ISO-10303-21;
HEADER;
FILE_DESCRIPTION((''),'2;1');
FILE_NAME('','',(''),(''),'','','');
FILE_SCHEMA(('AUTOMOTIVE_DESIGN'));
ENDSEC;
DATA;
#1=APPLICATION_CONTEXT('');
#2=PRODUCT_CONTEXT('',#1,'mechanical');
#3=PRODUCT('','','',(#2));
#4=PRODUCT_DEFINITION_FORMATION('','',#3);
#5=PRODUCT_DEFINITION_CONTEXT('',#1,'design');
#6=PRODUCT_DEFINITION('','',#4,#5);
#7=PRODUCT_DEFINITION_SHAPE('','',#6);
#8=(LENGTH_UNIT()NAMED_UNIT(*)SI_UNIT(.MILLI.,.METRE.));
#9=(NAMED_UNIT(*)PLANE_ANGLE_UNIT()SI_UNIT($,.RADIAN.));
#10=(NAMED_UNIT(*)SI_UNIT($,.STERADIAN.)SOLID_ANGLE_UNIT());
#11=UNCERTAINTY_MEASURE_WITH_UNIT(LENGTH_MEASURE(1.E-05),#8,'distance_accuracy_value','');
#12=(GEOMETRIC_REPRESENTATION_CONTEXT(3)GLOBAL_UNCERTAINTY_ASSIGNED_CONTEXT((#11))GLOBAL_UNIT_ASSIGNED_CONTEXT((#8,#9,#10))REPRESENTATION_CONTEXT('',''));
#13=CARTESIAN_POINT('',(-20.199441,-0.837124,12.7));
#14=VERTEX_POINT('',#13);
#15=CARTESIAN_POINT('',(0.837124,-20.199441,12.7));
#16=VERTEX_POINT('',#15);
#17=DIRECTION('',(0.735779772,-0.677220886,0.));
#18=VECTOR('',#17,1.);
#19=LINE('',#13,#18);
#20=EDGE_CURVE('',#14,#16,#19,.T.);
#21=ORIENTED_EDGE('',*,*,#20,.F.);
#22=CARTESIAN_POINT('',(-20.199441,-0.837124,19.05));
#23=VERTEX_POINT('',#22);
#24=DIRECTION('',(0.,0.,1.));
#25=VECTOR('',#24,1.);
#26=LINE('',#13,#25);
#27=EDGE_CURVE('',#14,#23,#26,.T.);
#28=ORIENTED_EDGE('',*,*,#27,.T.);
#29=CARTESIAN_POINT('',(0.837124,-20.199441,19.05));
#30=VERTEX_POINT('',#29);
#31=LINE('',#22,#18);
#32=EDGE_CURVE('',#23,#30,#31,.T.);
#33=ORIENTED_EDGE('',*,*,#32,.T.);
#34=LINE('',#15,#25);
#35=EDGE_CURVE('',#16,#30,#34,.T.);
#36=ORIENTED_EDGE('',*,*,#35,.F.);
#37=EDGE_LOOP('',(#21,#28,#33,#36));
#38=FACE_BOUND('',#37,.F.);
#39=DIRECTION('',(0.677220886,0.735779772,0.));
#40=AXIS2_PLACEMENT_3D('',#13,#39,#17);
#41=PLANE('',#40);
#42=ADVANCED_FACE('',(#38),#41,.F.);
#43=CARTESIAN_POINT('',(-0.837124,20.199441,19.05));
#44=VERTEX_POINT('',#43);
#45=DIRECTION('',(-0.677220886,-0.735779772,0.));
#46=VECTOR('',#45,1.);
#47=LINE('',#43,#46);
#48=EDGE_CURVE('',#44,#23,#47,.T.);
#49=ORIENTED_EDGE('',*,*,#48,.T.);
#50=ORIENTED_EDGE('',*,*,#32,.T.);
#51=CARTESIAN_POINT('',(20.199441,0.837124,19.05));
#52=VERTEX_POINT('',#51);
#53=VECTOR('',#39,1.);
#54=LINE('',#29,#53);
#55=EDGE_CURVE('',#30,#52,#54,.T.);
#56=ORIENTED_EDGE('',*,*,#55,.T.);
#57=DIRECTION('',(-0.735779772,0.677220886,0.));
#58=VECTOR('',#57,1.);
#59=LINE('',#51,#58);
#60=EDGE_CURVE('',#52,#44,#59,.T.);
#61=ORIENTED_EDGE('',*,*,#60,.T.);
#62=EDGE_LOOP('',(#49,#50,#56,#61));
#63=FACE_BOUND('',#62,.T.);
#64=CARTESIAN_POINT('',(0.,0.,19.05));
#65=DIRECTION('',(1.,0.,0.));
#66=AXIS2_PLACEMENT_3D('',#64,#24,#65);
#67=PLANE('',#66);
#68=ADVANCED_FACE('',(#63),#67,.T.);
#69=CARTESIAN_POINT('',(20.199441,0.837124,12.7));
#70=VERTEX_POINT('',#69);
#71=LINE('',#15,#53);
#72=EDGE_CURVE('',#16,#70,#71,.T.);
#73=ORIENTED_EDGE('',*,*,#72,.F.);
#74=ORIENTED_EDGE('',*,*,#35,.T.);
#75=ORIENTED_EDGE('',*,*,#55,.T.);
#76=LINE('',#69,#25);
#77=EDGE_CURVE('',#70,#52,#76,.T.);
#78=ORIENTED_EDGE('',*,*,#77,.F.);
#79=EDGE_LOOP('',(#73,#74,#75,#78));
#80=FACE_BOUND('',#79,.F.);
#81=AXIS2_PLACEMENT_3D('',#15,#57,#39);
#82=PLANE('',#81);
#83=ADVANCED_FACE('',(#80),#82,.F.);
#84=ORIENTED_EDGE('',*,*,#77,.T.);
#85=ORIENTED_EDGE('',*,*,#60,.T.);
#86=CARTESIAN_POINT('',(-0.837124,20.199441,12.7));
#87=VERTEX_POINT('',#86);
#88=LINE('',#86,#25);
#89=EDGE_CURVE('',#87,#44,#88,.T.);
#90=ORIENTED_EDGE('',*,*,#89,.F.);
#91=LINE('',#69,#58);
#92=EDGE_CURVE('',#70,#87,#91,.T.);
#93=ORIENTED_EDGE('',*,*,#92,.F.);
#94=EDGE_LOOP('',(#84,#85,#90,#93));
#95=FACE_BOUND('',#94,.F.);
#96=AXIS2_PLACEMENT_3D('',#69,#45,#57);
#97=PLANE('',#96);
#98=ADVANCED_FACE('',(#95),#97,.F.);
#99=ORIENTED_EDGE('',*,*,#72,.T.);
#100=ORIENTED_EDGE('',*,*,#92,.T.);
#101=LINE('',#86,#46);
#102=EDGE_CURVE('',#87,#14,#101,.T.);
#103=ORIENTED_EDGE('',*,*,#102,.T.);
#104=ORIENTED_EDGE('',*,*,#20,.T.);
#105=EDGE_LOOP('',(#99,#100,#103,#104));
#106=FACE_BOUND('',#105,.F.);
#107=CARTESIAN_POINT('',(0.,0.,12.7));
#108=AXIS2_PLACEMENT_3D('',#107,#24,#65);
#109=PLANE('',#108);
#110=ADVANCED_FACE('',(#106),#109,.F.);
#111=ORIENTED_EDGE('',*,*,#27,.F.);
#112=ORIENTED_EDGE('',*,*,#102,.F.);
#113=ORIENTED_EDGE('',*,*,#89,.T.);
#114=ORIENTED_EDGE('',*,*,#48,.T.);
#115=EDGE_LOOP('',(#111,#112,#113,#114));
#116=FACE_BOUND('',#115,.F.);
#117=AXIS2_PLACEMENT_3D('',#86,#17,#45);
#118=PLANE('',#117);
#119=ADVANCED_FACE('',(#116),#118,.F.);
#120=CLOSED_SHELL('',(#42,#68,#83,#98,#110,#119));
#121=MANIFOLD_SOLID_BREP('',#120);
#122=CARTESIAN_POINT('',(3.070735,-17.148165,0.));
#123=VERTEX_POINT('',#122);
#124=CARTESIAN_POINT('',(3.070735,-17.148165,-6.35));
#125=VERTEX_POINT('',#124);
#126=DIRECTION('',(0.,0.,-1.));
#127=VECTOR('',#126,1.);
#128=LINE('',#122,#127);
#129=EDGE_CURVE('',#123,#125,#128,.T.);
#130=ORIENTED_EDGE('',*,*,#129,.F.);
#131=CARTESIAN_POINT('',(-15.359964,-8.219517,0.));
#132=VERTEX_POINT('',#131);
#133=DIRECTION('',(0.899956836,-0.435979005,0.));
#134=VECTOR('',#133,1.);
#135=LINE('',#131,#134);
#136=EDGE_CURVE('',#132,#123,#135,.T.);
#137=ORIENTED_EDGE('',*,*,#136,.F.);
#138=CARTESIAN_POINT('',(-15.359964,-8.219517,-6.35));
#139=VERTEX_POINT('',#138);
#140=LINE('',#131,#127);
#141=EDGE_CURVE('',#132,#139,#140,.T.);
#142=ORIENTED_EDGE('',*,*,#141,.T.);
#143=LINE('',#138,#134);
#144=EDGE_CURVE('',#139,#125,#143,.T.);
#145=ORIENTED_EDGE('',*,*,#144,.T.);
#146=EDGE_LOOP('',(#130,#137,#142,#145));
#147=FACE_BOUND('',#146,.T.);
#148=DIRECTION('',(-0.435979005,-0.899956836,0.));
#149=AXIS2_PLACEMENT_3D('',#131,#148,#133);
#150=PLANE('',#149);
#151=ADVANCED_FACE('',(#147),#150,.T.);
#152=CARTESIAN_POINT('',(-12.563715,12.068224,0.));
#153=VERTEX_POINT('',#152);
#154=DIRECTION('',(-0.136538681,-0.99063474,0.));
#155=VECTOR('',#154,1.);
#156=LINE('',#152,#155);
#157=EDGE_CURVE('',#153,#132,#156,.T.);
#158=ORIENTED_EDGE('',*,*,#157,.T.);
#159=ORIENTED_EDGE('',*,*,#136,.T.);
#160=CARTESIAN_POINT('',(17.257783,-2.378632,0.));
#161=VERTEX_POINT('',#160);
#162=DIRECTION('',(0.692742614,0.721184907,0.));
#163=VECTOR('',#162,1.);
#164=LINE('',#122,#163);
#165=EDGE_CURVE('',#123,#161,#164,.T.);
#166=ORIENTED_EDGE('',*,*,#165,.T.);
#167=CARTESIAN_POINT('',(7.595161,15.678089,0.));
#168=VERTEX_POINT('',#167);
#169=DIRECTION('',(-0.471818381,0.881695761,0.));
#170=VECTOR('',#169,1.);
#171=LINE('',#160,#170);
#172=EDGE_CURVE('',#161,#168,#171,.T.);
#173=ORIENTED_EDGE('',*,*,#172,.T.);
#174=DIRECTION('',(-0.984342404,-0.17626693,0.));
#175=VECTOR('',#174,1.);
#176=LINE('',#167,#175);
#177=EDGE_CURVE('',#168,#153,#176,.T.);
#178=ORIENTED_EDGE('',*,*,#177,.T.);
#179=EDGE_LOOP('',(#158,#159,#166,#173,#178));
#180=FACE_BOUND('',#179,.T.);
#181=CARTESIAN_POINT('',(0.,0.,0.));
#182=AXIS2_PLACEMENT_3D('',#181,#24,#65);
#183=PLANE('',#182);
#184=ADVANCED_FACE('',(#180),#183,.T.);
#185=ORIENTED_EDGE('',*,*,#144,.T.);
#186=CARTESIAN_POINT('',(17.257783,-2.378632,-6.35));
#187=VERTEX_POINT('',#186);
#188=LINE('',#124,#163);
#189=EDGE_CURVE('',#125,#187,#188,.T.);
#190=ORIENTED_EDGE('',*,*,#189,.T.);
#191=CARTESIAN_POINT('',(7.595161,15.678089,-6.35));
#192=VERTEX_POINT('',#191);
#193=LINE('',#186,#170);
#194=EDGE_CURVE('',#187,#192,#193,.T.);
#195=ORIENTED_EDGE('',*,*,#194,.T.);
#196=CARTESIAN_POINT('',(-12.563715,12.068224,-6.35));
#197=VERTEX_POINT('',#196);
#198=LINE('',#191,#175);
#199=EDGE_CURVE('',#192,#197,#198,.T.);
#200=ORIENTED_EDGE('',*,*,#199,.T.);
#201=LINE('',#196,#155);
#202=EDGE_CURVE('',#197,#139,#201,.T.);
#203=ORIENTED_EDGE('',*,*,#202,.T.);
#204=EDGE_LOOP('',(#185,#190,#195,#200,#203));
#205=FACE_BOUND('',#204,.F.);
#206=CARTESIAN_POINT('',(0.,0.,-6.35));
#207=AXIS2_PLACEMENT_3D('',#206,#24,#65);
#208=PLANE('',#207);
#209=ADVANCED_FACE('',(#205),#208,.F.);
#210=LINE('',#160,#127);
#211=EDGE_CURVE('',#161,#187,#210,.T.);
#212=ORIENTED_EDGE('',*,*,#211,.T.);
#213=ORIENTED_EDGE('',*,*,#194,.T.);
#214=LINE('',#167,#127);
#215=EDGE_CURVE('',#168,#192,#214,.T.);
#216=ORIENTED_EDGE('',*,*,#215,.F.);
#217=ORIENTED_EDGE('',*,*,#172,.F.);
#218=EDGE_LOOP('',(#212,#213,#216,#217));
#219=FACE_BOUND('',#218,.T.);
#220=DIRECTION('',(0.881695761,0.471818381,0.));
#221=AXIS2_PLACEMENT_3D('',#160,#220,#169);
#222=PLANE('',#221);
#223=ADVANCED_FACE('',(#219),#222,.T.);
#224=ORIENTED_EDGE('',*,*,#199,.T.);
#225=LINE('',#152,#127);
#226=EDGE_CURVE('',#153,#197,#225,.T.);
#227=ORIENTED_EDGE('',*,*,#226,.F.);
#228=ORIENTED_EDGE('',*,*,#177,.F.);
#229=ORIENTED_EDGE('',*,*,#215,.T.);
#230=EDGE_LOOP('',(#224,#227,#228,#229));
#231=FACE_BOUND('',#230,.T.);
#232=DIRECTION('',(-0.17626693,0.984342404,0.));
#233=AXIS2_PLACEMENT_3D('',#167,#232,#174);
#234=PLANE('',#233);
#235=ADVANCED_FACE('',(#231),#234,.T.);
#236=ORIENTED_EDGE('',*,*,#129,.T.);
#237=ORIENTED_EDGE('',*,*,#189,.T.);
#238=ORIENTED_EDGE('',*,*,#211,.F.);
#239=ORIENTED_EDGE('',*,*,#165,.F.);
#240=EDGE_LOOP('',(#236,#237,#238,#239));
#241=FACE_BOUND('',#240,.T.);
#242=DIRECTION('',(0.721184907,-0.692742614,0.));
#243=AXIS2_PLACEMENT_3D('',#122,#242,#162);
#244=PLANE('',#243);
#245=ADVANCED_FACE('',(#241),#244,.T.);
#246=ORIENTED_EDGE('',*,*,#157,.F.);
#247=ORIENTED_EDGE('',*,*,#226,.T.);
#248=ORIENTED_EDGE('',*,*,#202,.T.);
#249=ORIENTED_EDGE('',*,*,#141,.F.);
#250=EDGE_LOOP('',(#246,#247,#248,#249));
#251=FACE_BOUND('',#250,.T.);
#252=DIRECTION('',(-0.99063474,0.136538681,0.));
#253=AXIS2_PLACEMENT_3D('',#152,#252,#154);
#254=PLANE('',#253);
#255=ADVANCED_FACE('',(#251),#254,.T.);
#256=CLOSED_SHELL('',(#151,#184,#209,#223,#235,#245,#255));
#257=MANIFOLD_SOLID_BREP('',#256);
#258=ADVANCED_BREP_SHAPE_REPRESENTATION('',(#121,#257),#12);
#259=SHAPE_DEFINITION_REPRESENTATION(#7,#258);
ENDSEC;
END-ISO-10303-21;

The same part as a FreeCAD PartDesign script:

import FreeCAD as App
import Part
import Sketcher

V = App.Vector
Q = App.Units.Quantity

doc = App.newDocument("Part")
params = doc.addObject("Spreadsheet::Sheet", "Params")
for row, (alias, value) in enumerate([
    ("pad1_length", "0.25 in"),
    ("pad2_length", "0.25 in"),
], start=1):
    params.set(f"A{row}", alias)
    params.set(f"B{row}", "=" + value)
    params.setAlias(f"B{row}", alias)

body = doc.addObject("PartDesign::Body", "Body")

# Sketch on XY plane
sketch1 = body.newObject("Sketcher::SketchObject", "Sketch")
sketch1.AttachmentSupport = (doc.getObject("XY_Plane"), [""])
sketch1.MapMode = "FlatFace"
sketch1.addGeometry(Part.LineSegment(V(17.257783, -2.378632, 0), V(7.595161, 15.678089, 0)), False)
sketch1.addGeometry(Part.LineSegment(V(7.595161, 15.678089, 0), V(-12.563715, 12.068224, 0)), False)
sketch1.addGeometry(Part.LineSegment(V(-12.563715, 12.068224, 0), V(-15.359964, -8.219517, 0)), False)
sketch1.addGeometry(Part.LineSegment(V(-15.359964, -8.219517, 0), V(3.070735, -17.148165, 0)), False)
sketch1.addGeometry(Part.LineSegment(V(3.070735, -17.148165, 0), V(17.257783, -2.378632, 0)), False)
sketch1.addConstraint(Sketcher.Constraint("Coincident", 0, 2, 1, 1))
sketch1.addConstraint(Sketcher.Constraint("Coincident", 1, 2, 2, 1))
sketch1.addConstraint(Sketcher.Constraint("Coincident", 2, 2, 3, 1))
sketch1.addConstraint(Sketcher.Constraint("Coincident", 3, 2, 4, 1))
sketch1.addConstraint(Sketcher.Constraint("Coincident", 4, 2, 0, 1))
sketch1.addConstraint(Sketcher.Constraint("Equal", 0, 1))
sketch1.addConstraint(Sketcher.Constraint("Equal", 1, 2))
sketch1.addConstraint(Sketcher.Constraint("Equal", 2, 3))
sketch1.addConstraint(Sketcher.Constraint("Equal", 3, 4))
sketch1.addConstraint(Sketcher.Constraint("DistanceX", 2, 2, 3, 2, Q("18.430699 mm")))
sketch1.addConstraint(Sketcher.Constraint("DistanceX", -1, 1, 0, 2, Q("7.595161 mm")))
sketch1.addConstraint(Sketcher.Constraint("DistanceY", -1, 1, 0, 2, Q("15.678089 mm")))
sketch1.addConstraint(Sketcher.Constraint("DistanceX", 2, 2, 1, 2, Q("2.796249 mm")))
sketch1.addConstraint(Sketcher.Constraint("DistanceY", 2, 2, 1, 2, Q("20.287741 mm")))
sketch1.addConstraint(Sketcher.Constraint("DistanceX", 3, 2, 4, 2, Q("14.187048 mm")))
pad1 = body.newObject("PartDesign::Pad", "Pad")
pad1.Profile = sketch1
pad1.setExpression("Length", "Params.pad1_length")
pad1.Reversed = True
body2 = doc.addObject("PartDesign::Body", "Body001")

# Sketch on XY plane
sketch2 = body2.newObject("Sketcher::SketchObject", "Sketch001")
sketch2.AttachmentSupport = (doc.getObject("XY_Plane001"), [""])
sketch2.MapMode = "FlatFace"
sketch2.AttachmentOffset = App.Placement(V(0, 0, 0.5 * 25.4), App.Rotation())
sketch2.addGeometry(Part.LineSegment(V(20.199441, 0.837124, 0), V(-0.837124, 20.199441, 0)), False)
sketch2.addGeometry(Part.LineSegment(V(-0.837124, 20.199441, 0), V(-20.199441, -0.837124, 0)), False)
sketch2.addGeometry(Part.LineSegment(V(-20.199441, -0.837124, 0), V(0.837124, -20.199441, 0)), False)
sketch2.addGeometry(Part.LineSegment(V(0.837124, -20.199441, 0), V(20.199441, 0.837124, 0)), False)
sketch2.addConstraint(Sketcher.Constraint("Coincident", 0, 2, 1, 1))
sketch2.addConstraint(Sketcher.Constraint("Coincident", 1, 2, 2, 1))
sketch2.addConstraint(Sketcher.Constraint("Coincident", 2, 2, 3, 1))
sketch2.addConstraint(Sketcher.Constraint("Coincident", 3, 2, 0, 1))
sketch2.addConstraint(Sketcher.Constraint("Symmetric", 0, 2, 2, 2, -1, 1))
sketch2.addConstraint(Sketcher.Constraint("Symmetric", 1, 2, 3, 2, -1, 1))
sketch2.addConstraint(Sketcher.Constraint("Perpendicular", 0, 1))
sketch2.addConstraint(Sketcher.Constraint("Equal", 0, 1))
sketch2.addConstraint(Sketcher.Constraint("DistanceY", -1, 1, 0, 2, Q("20.199441 mm")))
sketch2.addConstraint(Sketcher.Constraint("Distance", 0, Q("28.590844 mm")))
pad2 = body2.newObject("PartDesign::Pad", "Pad001")
pad2.Profile = sketch2
pad2.setExpression("Length", "Params.pad2_length")

doc.recompute()
